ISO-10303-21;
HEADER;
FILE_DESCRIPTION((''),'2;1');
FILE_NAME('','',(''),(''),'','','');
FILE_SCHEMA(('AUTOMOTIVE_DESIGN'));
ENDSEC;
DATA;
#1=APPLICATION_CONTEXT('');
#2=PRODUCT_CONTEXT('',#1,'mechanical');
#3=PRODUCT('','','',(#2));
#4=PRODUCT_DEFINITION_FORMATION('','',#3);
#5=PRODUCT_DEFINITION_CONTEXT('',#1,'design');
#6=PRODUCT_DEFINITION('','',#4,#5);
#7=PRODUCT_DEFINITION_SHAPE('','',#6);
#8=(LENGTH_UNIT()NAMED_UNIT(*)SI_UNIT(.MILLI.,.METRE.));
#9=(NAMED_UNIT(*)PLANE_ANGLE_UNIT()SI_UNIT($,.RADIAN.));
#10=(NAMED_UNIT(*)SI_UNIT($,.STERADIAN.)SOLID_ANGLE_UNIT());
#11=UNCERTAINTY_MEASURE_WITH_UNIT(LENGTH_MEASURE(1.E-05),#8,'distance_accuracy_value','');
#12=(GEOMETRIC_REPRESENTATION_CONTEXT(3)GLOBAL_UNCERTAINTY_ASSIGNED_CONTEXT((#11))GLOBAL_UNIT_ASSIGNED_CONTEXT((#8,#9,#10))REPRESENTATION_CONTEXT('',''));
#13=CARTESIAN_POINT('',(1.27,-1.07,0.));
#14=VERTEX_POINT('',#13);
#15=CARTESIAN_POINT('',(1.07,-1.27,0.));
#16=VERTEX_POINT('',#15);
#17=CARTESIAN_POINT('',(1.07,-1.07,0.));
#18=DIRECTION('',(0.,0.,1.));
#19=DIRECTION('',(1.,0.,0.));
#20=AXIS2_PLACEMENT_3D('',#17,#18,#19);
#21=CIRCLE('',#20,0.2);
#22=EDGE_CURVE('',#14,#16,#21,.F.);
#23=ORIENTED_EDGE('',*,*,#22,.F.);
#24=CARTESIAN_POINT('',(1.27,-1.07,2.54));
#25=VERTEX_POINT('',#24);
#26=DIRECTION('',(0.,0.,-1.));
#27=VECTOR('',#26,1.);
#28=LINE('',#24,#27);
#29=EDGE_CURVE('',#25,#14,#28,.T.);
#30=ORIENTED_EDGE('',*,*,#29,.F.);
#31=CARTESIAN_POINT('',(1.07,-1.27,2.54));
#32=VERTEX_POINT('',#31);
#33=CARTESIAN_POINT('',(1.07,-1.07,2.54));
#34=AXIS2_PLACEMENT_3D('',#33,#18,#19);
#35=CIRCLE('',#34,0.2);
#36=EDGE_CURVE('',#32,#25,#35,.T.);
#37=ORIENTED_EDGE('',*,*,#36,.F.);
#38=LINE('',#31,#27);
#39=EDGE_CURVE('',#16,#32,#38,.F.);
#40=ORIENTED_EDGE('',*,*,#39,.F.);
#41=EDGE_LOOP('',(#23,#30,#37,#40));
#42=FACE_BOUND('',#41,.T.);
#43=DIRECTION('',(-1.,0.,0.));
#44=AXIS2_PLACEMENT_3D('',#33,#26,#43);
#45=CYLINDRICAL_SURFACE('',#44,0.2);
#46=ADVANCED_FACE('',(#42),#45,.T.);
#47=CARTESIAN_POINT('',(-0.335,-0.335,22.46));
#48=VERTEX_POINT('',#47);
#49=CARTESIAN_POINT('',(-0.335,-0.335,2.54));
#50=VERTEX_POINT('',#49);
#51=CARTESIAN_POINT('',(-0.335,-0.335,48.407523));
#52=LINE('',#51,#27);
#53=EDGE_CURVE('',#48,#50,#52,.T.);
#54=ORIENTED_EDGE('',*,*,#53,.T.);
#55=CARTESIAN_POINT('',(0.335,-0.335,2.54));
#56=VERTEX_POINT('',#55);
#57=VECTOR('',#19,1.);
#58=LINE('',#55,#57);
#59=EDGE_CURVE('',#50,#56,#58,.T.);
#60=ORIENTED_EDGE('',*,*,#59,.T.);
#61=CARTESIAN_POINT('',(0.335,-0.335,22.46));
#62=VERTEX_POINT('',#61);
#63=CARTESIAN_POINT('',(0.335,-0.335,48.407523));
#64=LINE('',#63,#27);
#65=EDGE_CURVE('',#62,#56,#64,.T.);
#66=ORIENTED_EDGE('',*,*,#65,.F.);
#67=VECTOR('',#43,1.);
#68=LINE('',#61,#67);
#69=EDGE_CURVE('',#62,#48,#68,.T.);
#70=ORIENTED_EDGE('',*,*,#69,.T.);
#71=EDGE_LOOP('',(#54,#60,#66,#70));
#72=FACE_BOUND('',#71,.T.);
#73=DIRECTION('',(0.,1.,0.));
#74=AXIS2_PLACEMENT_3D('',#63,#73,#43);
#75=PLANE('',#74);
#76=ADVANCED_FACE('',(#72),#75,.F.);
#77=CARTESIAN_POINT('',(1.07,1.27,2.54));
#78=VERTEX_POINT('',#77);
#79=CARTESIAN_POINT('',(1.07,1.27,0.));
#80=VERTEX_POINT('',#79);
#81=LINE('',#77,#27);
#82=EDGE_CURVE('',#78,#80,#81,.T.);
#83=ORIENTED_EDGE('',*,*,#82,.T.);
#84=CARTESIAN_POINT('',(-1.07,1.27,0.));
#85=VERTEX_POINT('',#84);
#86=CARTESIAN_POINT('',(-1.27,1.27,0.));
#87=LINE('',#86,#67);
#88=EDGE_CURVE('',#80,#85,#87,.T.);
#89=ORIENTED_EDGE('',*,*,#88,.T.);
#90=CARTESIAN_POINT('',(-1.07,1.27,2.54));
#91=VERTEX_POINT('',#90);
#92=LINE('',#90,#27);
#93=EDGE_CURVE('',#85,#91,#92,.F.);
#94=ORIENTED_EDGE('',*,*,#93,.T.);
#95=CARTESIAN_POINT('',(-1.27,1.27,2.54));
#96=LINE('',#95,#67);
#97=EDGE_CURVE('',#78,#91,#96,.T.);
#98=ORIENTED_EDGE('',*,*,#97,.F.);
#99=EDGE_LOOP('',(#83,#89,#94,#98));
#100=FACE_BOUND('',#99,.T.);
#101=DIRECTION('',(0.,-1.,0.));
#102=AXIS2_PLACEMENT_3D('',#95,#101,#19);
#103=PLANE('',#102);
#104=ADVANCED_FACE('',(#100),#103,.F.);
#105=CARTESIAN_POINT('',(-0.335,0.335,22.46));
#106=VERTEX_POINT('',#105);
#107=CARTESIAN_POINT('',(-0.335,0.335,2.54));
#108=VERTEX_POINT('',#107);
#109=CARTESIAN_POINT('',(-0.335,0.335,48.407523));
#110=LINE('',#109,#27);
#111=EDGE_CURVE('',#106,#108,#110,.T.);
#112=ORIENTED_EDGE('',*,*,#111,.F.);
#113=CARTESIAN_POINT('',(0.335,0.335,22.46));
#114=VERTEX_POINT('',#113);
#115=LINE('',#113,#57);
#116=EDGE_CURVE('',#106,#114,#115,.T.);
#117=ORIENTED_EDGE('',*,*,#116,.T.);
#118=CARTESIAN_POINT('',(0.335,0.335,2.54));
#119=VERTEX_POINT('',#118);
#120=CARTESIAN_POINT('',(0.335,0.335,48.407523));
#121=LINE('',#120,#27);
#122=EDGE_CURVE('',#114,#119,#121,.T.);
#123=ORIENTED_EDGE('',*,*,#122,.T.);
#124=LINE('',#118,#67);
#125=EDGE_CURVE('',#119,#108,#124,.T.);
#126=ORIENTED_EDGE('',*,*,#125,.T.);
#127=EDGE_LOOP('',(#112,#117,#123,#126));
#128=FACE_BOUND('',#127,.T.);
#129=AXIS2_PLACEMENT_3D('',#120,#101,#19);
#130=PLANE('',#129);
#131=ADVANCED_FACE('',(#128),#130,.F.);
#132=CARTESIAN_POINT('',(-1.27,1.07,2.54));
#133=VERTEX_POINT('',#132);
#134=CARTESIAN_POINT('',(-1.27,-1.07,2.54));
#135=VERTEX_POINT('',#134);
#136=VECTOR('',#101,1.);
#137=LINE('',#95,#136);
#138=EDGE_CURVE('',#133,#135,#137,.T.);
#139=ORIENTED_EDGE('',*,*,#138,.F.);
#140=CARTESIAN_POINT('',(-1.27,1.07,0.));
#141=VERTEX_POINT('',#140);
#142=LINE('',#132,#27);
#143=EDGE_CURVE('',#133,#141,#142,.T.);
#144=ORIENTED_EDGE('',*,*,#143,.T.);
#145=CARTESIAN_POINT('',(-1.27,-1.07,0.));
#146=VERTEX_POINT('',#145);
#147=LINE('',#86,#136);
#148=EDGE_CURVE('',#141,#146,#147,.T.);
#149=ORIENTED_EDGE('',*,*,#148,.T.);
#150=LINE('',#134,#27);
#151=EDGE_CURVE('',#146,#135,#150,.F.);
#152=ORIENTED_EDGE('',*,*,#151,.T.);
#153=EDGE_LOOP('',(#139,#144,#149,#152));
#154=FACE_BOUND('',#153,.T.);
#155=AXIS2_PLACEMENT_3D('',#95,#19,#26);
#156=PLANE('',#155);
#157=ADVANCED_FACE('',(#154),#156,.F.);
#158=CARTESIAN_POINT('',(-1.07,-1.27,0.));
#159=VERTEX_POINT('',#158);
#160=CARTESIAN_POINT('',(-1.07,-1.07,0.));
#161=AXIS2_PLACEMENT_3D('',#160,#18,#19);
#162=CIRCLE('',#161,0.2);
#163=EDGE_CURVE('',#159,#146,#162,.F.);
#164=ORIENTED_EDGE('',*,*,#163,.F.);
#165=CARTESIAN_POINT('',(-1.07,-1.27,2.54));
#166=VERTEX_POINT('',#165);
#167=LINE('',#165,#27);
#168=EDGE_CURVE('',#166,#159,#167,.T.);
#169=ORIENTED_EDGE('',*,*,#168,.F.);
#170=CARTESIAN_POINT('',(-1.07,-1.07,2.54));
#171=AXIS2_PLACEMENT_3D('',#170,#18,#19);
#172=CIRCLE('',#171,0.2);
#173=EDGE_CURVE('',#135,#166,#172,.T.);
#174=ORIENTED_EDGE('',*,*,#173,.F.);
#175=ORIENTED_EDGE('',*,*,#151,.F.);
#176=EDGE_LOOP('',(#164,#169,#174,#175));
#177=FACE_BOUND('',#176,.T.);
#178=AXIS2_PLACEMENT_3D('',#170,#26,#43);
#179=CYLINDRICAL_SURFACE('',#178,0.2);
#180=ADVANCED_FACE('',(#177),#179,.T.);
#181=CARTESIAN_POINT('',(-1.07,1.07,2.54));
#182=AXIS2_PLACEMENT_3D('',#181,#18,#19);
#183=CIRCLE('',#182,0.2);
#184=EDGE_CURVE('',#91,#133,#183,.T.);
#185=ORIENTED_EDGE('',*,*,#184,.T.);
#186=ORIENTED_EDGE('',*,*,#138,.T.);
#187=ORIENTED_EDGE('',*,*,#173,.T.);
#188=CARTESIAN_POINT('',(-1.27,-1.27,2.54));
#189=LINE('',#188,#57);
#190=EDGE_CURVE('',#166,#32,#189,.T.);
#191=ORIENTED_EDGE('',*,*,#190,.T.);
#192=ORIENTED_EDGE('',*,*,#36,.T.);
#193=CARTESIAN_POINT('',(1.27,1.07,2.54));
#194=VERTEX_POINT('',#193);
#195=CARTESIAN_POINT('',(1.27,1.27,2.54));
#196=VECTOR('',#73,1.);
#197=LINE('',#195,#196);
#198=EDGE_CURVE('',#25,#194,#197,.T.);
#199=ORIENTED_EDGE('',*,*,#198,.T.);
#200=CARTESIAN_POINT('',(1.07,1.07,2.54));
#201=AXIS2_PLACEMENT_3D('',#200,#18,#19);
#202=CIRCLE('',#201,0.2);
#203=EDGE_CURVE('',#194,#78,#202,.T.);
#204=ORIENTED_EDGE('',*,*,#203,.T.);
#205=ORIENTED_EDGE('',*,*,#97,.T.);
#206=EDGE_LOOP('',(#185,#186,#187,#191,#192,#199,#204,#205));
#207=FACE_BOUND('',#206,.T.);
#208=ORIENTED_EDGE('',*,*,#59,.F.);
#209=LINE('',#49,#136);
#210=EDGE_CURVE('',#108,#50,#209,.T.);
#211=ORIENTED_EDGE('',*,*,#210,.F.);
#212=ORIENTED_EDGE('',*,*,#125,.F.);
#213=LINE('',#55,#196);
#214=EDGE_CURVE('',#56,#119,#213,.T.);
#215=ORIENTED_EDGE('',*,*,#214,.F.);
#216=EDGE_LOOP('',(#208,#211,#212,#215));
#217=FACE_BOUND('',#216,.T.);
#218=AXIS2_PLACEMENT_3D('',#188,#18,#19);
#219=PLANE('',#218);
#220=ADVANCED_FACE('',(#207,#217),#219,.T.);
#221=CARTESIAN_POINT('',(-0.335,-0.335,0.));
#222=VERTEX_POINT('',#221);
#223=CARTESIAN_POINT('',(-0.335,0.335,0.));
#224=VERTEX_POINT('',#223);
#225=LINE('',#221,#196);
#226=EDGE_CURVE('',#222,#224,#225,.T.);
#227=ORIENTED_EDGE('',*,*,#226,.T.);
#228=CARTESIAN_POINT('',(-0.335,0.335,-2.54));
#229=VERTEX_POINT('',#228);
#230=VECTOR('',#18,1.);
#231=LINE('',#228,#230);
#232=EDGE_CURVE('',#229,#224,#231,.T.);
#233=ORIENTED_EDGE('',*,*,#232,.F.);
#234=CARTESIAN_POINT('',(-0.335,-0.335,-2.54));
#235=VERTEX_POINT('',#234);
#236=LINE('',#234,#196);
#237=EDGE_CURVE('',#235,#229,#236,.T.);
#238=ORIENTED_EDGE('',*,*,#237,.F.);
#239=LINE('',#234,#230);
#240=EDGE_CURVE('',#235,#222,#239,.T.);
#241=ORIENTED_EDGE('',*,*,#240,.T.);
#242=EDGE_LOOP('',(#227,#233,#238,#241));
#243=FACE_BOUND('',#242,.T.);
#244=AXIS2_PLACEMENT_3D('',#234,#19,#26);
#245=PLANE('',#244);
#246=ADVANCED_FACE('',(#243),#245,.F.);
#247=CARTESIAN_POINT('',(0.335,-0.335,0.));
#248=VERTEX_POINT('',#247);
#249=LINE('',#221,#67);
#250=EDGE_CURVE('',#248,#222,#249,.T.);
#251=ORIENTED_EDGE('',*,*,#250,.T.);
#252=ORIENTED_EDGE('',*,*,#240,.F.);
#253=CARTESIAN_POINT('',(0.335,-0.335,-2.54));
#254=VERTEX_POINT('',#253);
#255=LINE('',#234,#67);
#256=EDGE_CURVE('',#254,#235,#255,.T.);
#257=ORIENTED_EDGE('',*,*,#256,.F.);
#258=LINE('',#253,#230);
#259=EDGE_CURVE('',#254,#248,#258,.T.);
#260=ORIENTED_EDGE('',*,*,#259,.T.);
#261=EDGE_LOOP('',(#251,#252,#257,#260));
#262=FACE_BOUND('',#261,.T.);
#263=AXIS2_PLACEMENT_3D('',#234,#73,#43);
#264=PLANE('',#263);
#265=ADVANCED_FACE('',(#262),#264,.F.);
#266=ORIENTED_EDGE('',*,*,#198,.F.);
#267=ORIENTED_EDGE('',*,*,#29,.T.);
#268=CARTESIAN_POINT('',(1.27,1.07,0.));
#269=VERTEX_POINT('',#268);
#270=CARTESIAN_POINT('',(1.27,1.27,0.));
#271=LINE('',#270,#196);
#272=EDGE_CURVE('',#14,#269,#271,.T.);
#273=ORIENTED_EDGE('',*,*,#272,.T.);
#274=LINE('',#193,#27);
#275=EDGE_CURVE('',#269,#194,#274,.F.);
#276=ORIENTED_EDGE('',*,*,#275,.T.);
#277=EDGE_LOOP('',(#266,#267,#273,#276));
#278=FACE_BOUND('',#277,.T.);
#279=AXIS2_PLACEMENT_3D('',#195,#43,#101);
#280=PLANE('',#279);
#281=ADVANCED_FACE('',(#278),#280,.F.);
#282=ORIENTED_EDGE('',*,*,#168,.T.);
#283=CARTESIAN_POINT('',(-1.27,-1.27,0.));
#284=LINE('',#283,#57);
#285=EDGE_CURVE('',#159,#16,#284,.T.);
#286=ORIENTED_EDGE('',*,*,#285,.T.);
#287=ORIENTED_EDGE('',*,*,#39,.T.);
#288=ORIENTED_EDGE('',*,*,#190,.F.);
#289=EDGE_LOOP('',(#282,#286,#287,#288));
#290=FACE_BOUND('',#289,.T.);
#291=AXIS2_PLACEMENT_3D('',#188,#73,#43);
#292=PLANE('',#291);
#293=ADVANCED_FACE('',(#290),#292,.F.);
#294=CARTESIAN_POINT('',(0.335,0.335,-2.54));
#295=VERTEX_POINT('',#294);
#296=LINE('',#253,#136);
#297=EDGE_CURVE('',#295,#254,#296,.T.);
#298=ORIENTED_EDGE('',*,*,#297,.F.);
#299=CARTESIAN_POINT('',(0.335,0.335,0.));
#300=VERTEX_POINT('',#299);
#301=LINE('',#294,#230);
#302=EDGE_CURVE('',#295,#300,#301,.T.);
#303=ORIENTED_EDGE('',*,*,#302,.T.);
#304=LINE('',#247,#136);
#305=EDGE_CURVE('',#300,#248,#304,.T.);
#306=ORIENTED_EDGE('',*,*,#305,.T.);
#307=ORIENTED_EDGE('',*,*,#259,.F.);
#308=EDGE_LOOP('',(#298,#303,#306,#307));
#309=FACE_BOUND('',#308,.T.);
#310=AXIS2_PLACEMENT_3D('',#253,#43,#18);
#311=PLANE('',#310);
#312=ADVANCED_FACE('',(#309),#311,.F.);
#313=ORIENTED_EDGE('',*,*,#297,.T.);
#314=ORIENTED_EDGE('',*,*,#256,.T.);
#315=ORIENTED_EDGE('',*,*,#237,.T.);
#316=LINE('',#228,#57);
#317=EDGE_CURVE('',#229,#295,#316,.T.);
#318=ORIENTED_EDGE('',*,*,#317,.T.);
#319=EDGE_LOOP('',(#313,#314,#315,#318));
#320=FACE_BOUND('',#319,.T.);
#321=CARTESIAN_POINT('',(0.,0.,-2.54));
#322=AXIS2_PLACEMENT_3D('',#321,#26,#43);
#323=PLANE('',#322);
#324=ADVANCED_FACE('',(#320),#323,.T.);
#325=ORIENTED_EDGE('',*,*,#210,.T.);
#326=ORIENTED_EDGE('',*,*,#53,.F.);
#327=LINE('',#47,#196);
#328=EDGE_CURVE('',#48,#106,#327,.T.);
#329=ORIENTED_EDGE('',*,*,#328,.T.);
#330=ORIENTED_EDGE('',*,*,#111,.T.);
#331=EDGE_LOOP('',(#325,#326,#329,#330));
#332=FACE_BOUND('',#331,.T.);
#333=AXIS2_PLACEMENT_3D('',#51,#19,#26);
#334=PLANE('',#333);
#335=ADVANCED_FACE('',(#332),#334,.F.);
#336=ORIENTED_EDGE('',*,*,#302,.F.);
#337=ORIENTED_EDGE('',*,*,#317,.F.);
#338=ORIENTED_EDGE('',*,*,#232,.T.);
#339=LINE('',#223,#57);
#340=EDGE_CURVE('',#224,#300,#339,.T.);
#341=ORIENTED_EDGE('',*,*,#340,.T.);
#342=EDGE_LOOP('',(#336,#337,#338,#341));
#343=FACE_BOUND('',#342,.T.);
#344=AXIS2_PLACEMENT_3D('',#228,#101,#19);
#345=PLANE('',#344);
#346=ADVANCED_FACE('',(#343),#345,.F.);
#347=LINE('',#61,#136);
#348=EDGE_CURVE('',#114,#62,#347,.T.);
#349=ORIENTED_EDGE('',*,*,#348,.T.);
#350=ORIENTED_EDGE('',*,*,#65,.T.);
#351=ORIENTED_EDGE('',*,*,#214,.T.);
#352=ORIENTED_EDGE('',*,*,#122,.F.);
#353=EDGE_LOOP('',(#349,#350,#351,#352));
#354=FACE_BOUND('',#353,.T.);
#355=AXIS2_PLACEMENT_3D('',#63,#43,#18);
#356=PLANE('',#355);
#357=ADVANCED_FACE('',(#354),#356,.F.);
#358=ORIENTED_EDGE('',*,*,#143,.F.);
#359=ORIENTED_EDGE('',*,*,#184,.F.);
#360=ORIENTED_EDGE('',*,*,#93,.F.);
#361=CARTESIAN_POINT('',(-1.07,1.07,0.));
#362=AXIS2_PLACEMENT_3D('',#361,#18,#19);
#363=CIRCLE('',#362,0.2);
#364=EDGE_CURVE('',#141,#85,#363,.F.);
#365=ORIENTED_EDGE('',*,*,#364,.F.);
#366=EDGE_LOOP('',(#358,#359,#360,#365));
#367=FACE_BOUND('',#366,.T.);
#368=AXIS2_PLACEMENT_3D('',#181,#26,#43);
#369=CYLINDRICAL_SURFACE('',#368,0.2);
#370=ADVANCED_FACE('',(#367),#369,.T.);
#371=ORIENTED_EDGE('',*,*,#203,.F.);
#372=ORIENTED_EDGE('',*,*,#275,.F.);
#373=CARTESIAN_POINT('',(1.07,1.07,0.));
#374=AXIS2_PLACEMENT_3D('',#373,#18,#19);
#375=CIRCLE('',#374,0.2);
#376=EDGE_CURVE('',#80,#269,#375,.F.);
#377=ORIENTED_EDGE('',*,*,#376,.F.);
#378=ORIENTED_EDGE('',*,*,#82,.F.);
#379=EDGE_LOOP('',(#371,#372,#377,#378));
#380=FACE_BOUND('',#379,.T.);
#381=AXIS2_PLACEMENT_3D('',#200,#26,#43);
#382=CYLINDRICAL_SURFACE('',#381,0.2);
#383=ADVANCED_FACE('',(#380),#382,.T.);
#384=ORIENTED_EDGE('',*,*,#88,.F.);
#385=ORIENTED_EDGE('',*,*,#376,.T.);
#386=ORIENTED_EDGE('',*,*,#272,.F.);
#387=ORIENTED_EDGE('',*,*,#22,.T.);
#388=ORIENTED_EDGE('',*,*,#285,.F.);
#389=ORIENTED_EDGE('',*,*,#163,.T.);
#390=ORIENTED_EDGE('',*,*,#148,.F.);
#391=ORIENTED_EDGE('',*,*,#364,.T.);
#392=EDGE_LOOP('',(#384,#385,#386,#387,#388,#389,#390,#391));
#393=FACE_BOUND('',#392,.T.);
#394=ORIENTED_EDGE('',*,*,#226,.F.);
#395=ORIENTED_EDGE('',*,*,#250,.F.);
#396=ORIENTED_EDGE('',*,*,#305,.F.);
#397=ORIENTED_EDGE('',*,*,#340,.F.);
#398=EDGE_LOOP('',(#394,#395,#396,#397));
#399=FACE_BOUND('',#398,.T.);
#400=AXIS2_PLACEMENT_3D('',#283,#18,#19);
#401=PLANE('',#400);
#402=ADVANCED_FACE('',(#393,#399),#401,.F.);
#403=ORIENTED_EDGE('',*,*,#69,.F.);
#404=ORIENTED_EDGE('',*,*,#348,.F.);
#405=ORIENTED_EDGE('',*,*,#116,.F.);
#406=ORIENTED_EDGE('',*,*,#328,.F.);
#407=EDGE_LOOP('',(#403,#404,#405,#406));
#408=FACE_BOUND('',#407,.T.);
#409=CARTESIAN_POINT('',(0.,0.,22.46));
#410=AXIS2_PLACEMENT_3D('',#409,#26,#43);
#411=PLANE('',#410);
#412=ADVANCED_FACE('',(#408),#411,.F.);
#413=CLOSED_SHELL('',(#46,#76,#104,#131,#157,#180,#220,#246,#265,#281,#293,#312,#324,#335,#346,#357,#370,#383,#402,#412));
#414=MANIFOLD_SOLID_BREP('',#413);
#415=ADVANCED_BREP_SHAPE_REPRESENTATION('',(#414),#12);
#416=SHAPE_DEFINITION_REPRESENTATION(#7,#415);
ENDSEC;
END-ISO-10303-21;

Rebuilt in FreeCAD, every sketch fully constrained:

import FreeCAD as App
import Part
import Sketcher

V = App.Vector
Q = App.Units.Quantity


def edges_at(feature, points):
    """Names of the edges that pass closest to the given points."""
    edges = feature.Shape.Edges
    near = lambda p: min(range(len(edges)), key=lambda i: edges[i].distToShape(Part.Vertex(*p))[0])
    return sorted({f"Edge{near(p) + 1}" for p in points})


def add_polygon(sketch, points):
    """Adds a closed chain of lines whose ends are joined by coincident constraints."""
    first, n = sketch.GeometryCount, len(points)
    for a, b in zip(points, points[1:] + points[:1]):
        sketch.addGeometry(Part.LineSegment(App.Vector(*a, 0), App.Vector(*b, 0)), False)
    for i in range(n):
        sketch.addConstraint(Sketcher.Constraint("Coincident", first + i, 2, first + (i + 1) % n, 1))

doc = App.newDocument("Part")
body = doc.addObject("PartDesign::Body", "Body")

# Sketch on XY plane
sketch1 = body.newObject("Sketcher::SketchObject", "Sketch")
sketch1.AttachmentSupport = (doc.getObject("XY_Plane"), [""])
sketch1.MapMode = "FlatFace"
add_polygon(sketch1, [(-1.3, 1.3), (-1.3, -1.3), (1.3, -1.3), (1.3, 1.3)])  # lines 0-3
sketch1.addConstraint([
    Sketcher.Constraint("Vertical", 0),
    Sketcher.Constraint("Horizontal", 1),
    Sketcher.Constraint("Vertical", 2),
    Sketcher.Constraint("Horizontal", 3),
    Sketcher.Constraint("Symmetric", 0, 2, 2, 2, -1, 1),
    Sketcher.Constraint("Equal", 3, 0),
    Sketcher.Constraint("DistanceX", 1, 1, 1, 2, Q("2.54 mm")),
])
pad1 = body.newObject("PartDesign::Pad", "Pad")
pad1.Profile = sketch1
pad1.Length = 2.54

# Sketch on XY plane
sketch2 = body.newObject("Sketcher::SketchObject", "Sketch001")
sketch2.AttachmentSupport = (doc.getObject("XY_Plane"), [""])
sketch2.MapMode = "FlatFace"
add_polygon(sketch2, [(0.3, 0.3), (0.3, -0.3), (-0.3, -0.3), (-0.3, 0.3)])  # lines 0-3
sketch2.addConstraint([
    Sketcher.Constraint("Vertical", 0),
    Sketcher.Constraint("Horizontal", 1),
    Sketcher.Constraint("Vertical", 2),
    Sketcher.Constraint("Horizontal", 3),
    Sketcher.Constraint("Symmetric", 0, 2, 2, 2, -1, 1),
    Sketcher.Constraint("Equal", 3, 0),
    Sketcher.Constraint("DistanceX", 1, 2, 1, 1, Q("0.67 mm")),
])
pad2 = body.newObject("PartDesign::Pad", "Pad001")
pad2.Profile = sketch2
pad2.Length = 2.54
pad2.Reversed = True

# Sketch on XY plane
sketch3 = body.newObject("Sketcher::SketchObject", "Sketch002")
sketch3.AttachmentSupport = (doc.getObject("XY_Plane"), [""])
sketch3.MapMode = "FlatFace"
sketch3.AttachmentOffset = App.Placement(V(0, 0, 2.54), App.Rotation())
add_polygon(sketch3, [(-0.3, 0.3), (-0.3, -0.3), (0.3, -0.3), (0.3, 0.3)])  # lines 0-3
sketch3.addConstraint([
    Sketcher.Constraint("Vertical", 0),
    Sketcher.Constraint("Horizontal", 1),
    Sketcher.Constraint("Vertical", 2),
    Sketcher.Constraint("Horizontal", 3),
    Sketcher.Constraint("Symmetric", 0, 2, 2, 2, -1, 1),
    Sketcher.Constraint("Equal", 3, 0),
    Sketcher.Constraint("DistanceX", 1, 1, 1, 2, Q("0.67 mm")),
])
pad3 = body.newObject("PartDesign::Pad", "Pad002")
pad3.Profile = sketch3
pad3.Length = 19.92
doc.recompute()

fillet = body.newObject("PartDesign::Fillet", "Fillet")
fillet.Base = (pad3, edges_at(pad3, [
    (-1.27, 1.27, 1.27),
    (1.27, 1.27, 1.27),
    (1.27, -1.27, 1.27),
    (-1.27, -1.27, 1.27),
]))
fillet.Radius = 0.2

doc.recompute()
